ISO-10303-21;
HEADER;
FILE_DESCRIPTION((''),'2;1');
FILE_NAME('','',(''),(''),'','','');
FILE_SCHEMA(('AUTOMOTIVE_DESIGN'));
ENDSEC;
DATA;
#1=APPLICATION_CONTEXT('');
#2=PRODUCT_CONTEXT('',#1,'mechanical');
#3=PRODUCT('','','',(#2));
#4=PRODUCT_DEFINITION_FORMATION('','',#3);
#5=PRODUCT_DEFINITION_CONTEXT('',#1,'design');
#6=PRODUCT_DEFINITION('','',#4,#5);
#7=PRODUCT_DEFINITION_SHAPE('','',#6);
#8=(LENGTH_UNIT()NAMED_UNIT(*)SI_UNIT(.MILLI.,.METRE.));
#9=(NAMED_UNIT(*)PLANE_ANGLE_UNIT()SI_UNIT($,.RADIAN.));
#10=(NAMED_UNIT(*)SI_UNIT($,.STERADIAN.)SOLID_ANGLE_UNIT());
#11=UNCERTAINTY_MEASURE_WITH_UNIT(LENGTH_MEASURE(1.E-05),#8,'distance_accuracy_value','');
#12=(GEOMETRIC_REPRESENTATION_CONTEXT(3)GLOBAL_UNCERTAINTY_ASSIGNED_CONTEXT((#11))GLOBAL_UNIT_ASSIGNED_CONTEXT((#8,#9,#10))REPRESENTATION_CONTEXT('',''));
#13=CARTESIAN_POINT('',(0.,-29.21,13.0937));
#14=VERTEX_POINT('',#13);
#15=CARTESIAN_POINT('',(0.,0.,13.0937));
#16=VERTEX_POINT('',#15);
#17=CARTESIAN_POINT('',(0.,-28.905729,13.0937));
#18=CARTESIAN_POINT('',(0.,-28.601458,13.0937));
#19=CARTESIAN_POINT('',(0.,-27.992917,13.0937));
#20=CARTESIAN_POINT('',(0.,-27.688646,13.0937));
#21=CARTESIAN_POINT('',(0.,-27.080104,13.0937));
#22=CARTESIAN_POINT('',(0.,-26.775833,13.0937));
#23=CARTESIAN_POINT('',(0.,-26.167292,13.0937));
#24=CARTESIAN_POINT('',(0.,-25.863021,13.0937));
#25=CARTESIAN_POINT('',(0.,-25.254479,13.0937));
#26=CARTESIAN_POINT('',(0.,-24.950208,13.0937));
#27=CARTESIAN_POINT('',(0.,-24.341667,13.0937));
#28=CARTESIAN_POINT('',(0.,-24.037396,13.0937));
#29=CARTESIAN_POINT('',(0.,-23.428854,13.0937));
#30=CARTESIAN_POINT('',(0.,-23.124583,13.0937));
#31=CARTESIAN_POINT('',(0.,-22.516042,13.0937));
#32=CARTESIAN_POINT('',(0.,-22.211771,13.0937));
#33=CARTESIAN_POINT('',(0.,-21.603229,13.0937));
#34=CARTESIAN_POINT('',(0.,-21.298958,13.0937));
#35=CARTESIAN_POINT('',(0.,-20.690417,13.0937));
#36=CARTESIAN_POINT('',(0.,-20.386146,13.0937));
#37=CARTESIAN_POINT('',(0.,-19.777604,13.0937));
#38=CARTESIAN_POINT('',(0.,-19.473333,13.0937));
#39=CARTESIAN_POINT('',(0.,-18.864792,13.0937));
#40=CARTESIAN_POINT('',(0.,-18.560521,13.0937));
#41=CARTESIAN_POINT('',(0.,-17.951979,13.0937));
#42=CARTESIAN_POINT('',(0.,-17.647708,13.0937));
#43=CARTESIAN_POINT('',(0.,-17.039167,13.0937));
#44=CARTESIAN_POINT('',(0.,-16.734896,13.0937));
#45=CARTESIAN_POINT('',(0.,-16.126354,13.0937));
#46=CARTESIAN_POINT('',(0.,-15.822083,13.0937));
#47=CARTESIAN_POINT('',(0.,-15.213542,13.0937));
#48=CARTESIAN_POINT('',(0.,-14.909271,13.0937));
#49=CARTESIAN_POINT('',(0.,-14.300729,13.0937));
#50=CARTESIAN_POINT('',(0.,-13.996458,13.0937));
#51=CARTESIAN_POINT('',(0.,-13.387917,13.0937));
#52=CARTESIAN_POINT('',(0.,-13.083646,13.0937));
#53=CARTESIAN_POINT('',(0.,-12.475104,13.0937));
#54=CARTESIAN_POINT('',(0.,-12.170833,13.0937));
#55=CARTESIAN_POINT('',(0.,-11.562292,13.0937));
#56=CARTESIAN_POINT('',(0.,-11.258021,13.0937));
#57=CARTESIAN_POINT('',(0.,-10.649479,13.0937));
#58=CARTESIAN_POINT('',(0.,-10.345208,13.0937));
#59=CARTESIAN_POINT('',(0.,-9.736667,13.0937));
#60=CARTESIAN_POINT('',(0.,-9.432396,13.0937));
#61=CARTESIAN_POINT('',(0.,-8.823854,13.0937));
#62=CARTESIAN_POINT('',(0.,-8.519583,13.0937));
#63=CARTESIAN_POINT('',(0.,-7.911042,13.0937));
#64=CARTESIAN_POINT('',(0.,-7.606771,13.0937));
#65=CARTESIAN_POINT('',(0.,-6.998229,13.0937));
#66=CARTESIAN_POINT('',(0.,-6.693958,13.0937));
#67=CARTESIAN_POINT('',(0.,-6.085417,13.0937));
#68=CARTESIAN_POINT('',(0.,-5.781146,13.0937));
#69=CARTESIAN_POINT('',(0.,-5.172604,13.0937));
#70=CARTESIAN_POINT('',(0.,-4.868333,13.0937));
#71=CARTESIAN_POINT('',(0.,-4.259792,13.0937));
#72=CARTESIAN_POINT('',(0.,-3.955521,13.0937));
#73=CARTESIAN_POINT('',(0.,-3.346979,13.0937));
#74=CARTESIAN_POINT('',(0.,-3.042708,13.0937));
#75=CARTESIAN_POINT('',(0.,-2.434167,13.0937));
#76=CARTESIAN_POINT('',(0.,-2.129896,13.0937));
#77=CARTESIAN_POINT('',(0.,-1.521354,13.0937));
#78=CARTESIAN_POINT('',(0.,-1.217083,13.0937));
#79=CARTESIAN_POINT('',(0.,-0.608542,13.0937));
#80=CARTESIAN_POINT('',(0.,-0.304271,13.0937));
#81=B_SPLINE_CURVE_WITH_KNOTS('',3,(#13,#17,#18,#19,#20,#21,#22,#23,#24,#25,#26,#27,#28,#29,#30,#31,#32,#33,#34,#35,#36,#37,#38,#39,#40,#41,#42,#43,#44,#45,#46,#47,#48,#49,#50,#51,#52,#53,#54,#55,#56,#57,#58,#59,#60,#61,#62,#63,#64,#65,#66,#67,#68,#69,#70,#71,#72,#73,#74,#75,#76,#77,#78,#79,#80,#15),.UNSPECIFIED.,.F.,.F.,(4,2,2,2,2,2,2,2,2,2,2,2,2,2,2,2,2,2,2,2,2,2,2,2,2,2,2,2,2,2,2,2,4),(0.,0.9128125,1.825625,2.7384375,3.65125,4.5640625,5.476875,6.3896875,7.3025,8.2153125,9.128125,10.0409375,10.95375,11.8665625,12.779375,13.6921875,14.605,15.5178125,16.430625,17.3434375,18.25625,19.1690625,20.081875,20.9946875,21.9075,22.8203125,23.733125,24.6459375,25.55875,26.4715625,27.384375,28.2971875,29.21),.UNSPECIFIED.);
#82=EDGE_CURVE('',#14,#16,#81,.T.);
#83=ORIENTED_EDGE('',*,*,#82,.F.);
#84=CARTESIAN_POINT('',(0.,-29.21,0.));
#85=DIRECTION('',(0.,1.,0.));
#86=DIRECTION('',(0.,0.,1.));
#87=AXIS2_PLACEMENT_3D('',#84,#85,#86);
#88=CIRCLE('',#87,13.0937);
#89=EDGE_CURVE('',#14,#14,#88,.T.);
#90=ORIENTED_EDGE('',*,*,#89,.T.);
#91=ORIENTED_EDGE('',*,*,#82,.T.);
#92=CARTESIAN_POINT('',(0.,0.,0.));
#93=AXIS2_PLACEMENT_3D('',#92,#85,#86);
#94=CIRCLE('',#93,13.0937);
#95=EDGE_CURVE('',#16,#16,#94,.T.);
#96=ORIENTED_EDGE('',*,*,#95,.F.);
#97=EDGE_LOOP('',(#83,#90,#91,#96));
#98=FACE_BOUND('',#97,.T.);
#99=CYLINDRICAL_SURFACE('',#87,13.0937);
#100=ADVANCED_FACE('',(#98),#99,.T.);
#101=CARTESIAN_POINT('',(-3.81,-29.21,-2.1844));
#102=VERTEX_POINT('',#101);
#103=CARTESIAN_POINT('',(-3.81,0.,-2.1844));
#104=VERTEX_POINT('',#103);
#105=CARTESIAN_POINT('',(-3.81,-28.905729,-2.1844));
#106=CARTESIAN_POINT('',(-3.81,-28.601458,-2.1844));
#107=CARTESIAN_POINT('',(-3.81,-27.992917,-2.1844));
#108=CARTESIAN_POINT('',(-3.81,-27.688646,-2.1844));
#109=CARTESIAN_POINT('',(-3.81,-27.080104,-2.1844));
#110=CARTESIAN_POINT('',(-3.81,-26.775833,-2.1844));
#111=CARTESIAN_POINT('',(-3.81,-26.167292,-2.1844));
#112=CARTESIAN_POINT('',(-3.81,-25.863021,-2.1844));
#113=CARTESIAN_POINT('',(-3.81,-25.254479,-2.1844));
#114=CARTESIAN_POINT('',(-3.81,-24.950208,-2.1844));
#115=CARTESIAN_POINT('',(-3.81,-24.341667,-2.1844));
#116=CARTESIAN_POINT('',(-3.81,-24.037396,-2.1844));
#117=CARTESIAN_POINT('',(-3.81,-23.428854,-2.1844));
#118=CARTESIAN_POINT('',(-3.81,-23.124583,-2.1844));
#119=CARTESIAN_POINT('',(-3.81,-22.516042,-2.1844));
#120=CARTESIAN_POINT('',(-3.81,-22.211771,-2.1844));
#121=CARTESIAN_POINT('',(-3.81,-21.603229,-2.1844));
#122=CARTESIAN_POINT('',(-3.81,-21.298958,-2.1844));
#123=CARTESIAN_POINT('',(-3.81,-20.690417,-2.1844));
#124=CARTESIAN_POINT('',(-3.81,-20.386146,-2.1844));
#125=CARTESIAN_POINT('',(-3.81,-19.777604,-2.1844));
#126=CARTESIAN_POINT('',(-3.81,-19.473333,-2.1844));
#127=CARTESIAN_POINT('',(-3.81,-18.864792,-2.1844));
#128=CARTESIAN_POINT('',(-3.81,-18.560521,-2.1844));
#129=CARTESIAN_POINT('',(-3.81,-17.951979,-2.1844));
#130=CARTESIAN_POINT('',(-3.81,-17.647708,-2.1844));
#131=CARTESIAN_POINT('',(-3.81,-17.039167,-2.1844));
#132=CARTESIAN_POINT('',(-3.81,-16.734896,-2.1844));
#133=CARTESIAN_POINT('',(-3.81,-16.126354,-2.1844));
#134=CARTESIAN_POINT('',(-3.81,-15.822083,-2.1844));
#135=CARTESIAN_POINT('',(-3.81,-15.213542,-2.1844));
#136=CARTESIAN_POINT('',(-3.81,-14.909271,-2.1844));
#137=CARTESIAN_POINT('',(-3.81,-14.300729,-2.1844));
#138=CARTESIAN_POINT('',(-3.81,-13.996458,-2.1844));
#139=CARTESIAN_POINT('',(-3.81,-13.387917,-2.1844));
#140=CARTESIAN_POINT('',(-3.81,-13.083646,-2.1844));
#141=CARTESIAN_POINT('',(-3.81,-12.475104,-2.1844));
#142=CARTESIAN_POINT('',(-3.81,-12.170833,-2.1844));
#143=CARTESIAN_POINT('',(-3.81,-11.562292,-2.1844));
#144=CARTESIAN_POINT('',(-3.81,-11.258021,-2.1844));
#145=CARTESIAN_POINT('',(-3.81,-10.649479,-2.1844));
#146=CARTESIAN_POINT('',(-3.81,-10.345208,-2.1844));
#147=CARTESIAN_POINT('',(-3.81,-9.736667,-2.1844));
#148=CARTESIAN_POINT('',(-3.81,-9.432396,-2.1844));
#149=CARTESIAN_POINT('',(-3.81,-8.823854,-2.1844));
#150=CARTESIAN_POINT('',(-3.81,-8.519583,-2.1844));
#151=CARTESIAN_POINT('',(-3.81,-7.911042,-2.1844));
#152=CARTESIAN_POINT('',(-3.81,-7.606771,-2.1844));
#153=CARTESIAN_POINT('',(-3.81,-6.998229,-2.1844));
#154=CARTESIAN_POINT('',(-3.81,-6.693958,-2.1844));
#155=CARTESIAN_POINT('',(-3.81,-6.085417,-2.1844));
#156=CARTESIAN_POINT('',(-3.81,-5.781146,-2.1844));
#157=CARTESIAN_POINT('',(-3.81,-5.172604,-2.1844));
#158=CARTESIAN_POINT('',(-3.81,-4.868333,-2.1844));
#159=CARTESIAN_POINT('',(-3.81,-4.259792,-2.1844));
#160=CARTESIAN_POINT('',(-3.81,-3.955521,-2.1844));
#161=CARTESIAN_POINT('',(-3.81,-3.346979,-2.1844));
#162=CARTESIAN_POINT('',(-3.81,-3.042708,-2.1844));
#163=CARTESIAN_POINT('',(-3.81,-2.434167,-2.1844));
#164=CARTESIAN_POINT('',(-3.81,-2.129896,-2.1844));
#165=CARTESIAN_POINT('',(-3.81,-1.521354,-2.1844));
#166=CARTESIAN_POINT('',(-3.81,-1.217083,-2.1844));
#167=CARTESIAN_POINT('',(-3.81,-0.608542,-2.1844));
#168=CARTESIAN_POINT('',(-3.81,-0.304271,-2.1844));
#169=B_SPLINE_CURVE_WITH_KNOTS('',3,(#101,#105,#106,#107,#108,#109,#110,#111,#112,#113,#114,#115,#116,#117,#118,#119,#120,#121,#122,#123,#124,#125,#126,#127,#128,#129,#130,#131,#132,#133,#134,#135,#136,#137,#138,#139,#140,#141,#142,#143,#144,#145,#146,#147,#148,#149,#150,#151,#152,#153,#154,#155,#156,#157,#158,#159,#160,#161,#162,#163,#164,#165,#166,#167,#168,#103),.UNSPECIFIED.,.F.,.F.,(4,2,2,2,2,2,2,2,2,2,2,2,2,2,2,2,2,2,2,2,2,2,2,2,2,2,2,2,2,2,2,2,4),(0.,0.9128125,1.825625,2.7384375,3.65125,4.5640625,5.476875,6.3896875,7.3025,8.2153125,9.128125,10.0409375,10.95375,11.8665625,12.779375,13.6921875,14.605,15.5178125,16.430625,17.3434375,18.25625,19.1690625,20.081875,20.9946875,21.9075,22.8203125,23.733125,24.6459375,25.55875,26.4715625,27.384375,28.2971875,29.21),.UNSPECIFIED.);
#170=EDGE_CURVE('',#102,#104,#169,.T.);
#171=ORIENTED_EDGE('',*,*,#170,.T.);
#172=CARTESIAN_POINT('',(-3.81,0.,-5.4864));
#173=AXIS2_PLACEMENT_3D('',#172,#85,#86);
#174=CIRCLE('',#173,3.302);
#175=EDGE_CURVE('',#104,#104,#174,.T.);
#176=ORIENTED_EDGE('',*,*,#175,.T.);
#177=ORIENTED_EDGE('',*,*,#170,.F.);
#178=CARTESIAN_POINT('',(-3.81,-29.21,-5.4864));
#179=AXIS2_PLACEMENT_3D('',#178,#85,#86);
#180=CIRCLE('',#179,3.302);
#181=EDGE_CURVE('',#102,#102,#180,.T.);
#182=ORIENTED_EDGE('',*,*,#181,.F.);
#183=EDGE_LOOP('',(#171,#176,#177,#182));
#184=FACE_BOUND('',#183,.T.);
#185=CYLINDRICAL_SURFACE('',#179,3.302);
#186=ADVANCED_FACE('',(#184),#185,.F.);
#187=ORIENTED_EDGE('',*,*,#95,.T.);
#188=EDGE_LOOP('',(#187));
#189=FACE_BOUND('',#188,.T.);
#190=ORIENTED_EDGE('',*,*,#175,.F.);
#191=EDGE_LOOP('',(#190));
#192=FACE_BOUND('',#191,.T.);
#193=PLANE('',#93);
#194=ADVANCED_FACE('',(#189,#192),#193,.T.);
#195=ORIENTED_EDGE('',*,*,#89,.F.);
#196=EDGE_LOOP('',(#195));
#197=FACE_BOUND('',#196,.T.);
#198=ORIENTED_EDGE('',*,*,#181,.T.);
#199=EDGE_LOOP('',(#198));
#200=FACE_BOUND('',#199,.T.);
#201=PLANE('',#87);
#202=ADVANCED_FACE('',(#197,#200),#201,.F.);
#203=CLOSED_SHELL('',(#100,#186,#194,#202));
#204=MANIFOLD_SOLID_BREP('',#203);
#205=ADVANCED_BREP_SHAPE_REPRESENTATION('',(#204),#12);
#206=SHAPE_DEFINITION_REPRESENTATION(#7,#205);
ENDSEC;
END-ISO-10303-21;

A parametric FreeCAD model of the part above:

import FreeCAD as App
import Part
import Sketcher
Q = App.Units.Quantity

doc = App.newDocument("Part")
body = doc.addObject("PartDesign::Body", "Body")

# Sketch on XZ plane
sketch1 = body.newObject("Sketcher::SketchObject", "Sketch")
sketch1.AttachmentSupport = (doc.getObject("XZ_Plane"), [""])
sketch1.MapMode = "FlatFace"
sketch1.addGeometry([
    Part.Circle(App.Vector(0, 0, 0), App.Vector(0, 0, 1), 13.0937),
    Part.Circle(App.Vector(-3.81, -5.4864, 0), App.Vector(0, 0, 1), 3.302),
], False)
sketch1.addConstraint([
    Sketcher.Constraint("Coincident", 0, 3, -1, 1),
    Sketcher.Constraint("Diameter", 1, Q("0.26 in")),
    Sketcher.Constraint("Diameter", 0, Q("1.031 in")),
    Sketcher.Constraint("DistanceX", 1, 3, -1, 1, Q("0.15 in")),
    Sketcher.Constraint("DistanceY", 1, 3, -1, 1, Q("0.216 in")),
])
pad1 = body.newObject("PartDesign::Pad", "Pad")
pad1.Profile = sketch1
pad1.Length = Q("1.15 in")

doc.recompute()
